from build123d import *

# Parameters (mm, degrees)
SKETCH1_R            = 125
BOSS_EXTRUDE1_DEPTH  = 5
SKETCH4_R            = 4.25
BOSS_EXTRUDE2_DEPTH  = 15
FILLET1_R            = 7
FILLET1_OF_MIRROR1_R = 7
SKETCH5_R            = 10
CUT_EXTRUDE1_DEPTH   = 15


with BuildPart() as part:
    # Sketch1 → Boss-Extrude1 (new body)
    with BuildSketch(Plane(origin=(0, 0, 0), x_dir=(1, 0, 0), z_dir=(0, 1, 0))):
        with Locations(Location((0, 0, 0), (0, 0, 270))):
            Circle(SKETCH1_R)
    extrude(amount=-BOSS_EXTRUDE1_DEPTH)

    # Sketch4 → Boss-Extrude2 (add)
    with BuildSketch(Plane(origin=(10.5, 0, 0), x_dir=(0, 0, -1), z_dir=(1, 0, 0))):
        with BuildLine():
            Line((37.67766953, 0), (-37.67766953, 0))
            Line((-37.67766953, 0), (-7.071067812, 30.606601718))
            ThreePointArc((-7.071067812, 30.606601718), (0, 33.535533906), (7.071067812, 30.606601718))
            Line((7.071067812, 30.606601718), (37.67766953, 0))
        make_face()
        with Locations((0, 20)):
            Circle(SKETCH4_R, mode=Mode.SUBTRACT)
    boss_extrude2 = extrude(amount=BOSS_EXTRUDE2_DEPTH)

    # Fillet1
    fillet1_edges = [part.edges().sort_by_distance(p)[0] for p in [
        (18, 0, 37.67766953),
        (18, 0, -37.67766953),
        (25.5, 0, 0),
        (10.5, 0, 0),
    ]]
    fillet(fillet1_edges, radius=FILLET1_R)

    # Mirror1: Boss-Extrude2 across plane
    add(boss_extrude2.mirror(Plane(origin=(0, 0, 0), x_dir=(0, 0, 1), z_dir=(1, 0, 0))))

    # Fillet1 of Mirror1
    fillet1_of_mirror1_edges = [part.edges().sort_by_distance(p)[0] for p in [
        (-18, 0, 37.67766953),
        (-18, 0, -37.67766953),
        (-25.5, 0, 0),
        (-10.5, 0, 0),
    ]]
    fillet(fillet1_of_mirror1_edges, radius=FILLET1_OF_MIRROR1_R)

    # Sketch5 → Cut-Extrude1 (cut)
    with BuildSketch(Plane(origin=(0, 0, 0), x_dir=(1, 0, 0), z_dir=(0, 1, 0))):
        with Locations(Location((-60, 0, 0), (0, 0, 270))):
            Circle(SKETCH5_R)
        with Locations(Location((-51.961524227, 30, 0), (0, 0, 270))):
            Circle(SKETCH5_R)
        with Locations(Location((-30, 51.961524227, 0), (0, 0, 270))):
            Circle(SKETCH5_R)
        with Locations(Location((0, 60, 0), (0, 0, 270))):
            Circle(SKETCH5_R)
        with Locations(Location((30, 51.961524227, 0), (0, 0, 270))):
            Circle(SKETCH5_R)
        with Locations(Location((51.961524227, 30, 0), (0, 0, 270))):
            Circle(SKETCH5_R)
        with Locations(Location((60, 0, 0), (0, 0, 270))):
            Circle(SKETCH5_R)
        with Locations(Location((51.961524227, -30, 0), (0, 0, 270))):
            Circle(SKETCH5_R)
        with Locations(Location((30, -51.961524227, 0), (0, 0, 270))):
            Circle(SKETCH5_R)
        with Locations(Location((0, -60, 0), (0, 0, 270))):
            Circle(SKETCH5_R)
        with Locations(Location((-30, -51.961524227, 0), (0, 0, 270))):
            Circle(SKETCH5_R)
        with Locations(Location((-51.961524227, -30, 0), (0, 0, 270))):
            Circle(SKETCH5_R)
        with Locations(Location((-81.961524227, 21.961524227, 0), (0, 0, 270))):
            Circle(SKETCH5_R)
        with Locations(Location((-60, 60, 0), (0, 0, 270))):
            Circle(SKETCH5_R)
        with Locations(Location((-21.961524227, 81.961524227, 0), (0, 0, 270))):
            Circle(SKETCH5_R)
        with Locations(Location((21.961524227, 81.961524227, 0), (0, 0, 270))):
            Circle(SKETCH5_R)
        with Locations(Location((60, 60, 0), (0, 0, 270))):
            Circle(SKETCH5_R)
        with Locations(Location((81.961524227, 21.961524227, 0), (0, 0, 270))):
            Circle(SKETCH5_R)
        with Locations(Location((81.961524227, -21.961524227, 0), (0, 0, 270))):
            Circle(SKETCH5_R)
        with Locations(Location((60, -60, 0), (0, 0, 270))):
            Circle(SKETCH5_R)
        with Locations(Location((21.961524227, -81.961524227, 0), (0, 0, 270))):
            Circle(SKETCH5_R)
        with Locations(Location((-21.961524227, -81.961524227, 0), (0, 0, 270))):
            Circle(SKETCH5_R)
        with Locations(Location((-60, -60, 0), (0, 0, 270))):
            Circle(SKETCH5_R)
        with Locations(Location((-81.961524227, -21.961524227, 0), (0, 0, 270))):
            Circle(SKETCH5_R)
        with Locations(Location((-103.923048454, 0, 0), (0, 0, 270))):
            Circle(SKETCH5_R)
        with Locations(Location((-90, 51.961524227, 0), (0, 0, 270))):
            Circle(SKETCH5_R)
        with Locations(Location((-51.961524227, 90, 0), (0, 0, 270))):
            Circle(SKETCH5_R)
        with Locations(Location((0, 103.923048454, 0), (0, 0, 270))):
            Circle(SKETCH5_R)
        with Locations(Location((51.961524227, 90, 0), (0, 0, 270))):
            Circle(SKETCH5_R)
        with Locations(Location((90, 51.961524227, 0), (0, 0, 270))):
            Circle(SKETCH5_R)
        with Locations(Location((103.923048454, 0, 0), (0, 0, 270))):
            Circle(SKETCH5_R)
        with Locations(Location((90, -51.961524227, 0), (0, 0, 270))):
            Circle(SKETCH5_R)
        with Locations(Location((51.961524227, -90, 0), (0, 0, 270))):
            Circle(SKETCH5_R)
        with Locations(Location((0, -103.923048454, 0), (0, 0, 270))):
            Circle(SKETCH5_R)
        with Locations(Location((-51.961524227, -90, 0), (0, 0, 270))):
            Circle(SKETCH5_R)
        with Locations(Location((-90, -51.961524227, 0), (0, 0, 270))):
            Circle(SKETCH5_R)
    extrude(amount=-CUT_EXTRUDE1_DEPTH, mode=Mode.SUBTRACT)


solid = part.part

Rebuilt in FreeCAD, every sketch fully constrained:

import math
import FreeCAD as App
import Part
import Sketcher

V = App.Vector


def edges_at(feature, points):
    """Names of the edges that pass closest to the given points."""
    edges = feature.Shape.Edges
    near = lambda p: min(range(len(edges)), key=lambda i: edges[i].distToShape(Part.Vertex(*p))[0])
    return sorted({f"Edge{near(p) + 1}" for p in points})

doc = App.newDocument("Part")
body = doc.addObject("PartDesign::Body", "Body")

# Sketch on XZ plane
sketch1 = doc.addObject("Sketcher::SketchObject", "Sketch")
body.addObject(sketch1)
sketch1.AttachmentSupport = (doc.XZ_Plane, [""])
sketch1.MapMode = "FlatFace"
sketch1.addGeometry(Part.Circle(V(0, 0, 0), V(0, 0, 1), 125), False)
sketch1.addConstraint([
    Sketcher.Constraint("Coincident", 0, 3, -1, 1),
    Sketcher.Constraint("Diameter", 0, 250.0),
])
pad1 = doc.addObject("PartDesign::Pad", "Pad")
body.addObject(pad1)
pad1.Profile = sketch1
pad1.Length = 5

# Sketch on YZ plane
sketch2 = doc.addObject("Sketcher::SketchObject", "Sketch001")
body.addObject(sketch2)
sketch2.AttachmentSupport = (doc.YZ_Plane, [""])
sketch2.MapMode = "FlatFace"
sketch2.AttachmentOffset = App.Placement(V(0, 0, 10.5), App.Rotation())
sketch2.addGeometry([
    Part.LineSegment(V(0, 37.7, 0), V(0, -37.7, 0)),  # 0
    Part.LineSegment(V(0, -37.7, 0), V(30.6, -7.1, 0)),  # 1
    Part.ArcOfCircle(Part.Circle(V(23.5, 0, 0), V(0, 0, 1), 10), math.radians(-45), math.radians(45)),  # 2
    Part.LineSegment(V(30.6, 7.1, 0), V(0, 37.7, 0)),  # 3
    Part.Circle(V(20, 0, 0), V(0, 0, 1), 4.2),  # 4
], False)
sketch2.addConstraint([
    Sketcher.Constraint("Coincident", 0, 2, 1, 1),
    Sketcher.Constraint("Tangent", 1, 2, 2, 1),
    Sketcher.Constraint("Tangent", 2, 2, 3, 1),
    Sketcher.Constraint("Coincident", 3, 2, 0, 1),
    Sketcher.Constraint("Vertical", 0),
    Sketcher.Constraint("Symmetric", 0, 2, 3, 2, -1, 1),
    Sketcher.Constraint("PointOnObject", 2, 3, -1),
    Sketcher.Constraint("PointOnObject", 4, 3, -1),
    Sketcher.Constraint("Perpendicular", 1, 3),
    Sketcher.Constraint("Radius", 2, 10.0),
    Sketcher.Constraint("Diameter", 4, 8.5),
    Sketcher.Constraint("DistanceX", -1, 1, 4, 3, 20.0),
    Sketcher.Constraint("DistanceY", 0, 2, 0, 1, 75.355339),
])
pad2 = doc.addObject("PartDesign::Pad", "Pad001")
body.addObject(pad2)
pad2.Profile = sketch2
pad2.Length = 15
doc.recompute()

fillet = doc.addObject("PartDesign::Fillet", "Fillet")
body.addObject(fillet)
fillet.Base = (pad2, edges_at(pad2, [
    (18, 0, 37.678),
    (18, 0, -37.678),
    (25.5, 0, 0),
    (10.5, 0, 0),
]))
fillet.Radius = 7
doc.recompute()

mirrored = doc.addObject("PartDesign::Mirrored", "Mirrored")
body.addObject(mirrored)
mirrored.Originals = [pad2]
mirrored.MirrorPlane = (doc.YZ_Plane, [""])
body.Tip = mirrored
doc.recompute()

fillet2 = doc.addObject("PartDesign::Fillet", "Fillet001")
body.addObject(fillet2)
fillet2.Base = (mirrored, edges_at(mirrored, [
    (-18, 0, 37.678),
    (-18, 0, -37.678),
    (-25.5, 0, 0),
    (-10.5, 0, 0),
]))
fillet2.Radius = 7

# Sketch on XZ plane
sketch3 = doc.addObject("Sketcher::SketchObject", "Sketch002")
body.addObject(sketch3)
sketch3.AttachmentSupport = (doc.XZ_Plane, [""])
sketch3.MapMode = "FlatFace"
sketch3.addGeometry([
    Part.Circle(V(-60, 0, 0), V(0, 0, 1), 10),  # 0
    Part.Circle(V(-52, -30, 0), V(0, 0, 1), 10),  # 1
    Part.Circle(V(-30, -52, 0), V(0, 0, 1), 10),  # 2
    Part.Circle(V(0, -60, 0), V(0, 0, 1), 10),  # 3
    Part.Circle(V(30, -52, 0), V(0, 0, 1), 10),  # 4
    Part.Circle(V(52, -30, 0), V(0, 0, 1), 10),  # 5
    Part.Circle(V(60, 0, 0), V(0, 0, 1), 10),  # 6
    Part.Circle(V(52, 30, 0), V(0, 0, 1), 10),  # 7
    Part.Circle(V(30, 52, 0), V(0, 0, 1), 10),  # 8
    Part.Circle(V(0, 60, 0), V(0, 0, 1), 10),  # 9
    Part.Circle(V(-30, 52, 0), V(0, 0, 1), 10),  # 10
    Part.Circle(V(-52, 30, 0), V(0, 0, 1), 10),  # 11
    Part.Circle(V(-82, -22, 0), V(0, 0, 1), 10),  # 12
    Part.Circle(V(-60, -60, 0), V(0, 0, 1), 10),  # 13
    Part.Circle(V(-22, -82, 0), V(0, 0, 1), 10),  # 14
    Part.Circle(V(22, -82, 0), V(0, 0, 1), 10),  # 15
    Part.Circle(V(60, -60, 0), V(0, 0, 1), 10),  # 16
    Part.Circle(V(82, -22, 0), V(0, 0, 1), 10),  # 17
    Part.Circle(V(82, 22, 0), V(0, 0, 1), 10),  # 18
    Part.Circle(V(60, 60, 0), V(0, 0, 1), 10),  # 19
    Part.Circle(V(22, 82, 0), V(0, 0, 1), 10),  # 20
    Part.Circle(V(-22, 82, 0), V(0, 0, 1), 10),  # 21
    Part.Circle(V(-60, 60, 0), V(0, 0, 1), 10),  # 22
    Part.Circle(V(-82, 22, 0), V(0, 0, 1), 10),  # 23
    Part.Circle(V(-104, 0, 0), V(0, 0, 1), 10),  # 24
    Part.Circle(V(-90, -52, 0), V(0, 0, 1), 10),  # 25
    Part.Circle(V(-52, -90, 0), V(0, 0, 1), 10),  # 26
    Part.Circle(V(0, -104, 0), V(0, 0, 1), 10),  # 27
    Part.Circle(V(52, -90, 0), V(0, 0, 1), 10),  # 28
    Part.Circle(V(90, -52, 0), V(0, 0, 1), 10),  # 29
    Part.Circle(V(104, 0, 0), V(0, 0, 1), 10),  # 30
    Part.Circle(V(90, 52, 0), V(0, 0, 1), 10),  # 31
    Part.Circle(V(52, 90, 0), V(0, 0, 1), 10),  # 32
    Part.Circle(V(0, 104, 0), V(0, 0, 1), 10),  # 33
    Part.Circle(V(-52, 90, 0), V(0, 0, 1), 10),  # 34
    Part.Circle(V(-90, 52, 0), V(0, 0, 1), 10),  # 35
], False)
sketch3.addConstraint([
    Sketcher.Constraint("Equal", 0, 1),
    Sketcher.Constraint("Equal", 1, 2),
    Sketcher.Constraint("Equal", 2, 3),
    Sketcher.Constraint("Equal", 3, 4),
    Sketcher.Constraint("Equal", 4, 5),
    Sketcher.Constraint("Equal", 5, 6),
    Sketcher.Constraint("Equal", 6, 7),
    Sketcher.Constraint("Equal", 7, 8),
    Sketcher.Constraint("Equal", 8, 9),
    Sketcher.Constraint("Equal", 9, 10),
    Sketcher.Constraint("Equal", 10, 11),
    Sketcher.Constraint("Equal", 11, 12),
    Sketcher.Constraint("Equal", 12, 13),
    Sketcher.Constraint("Equal", 13, 14),
    Sketcher.Constraint("Equal", 14, 15),
    Sketcher.Constraint("Equal", 15, 16),
    Sketcher.Constraint("Equal", 16, 17),
    Sketcher.Constraint("Equal", 17, 18),
    Sketcher.Constraint("Equal", 18, 19),
    Sketcher.Constraint("Equal", 19, 20),
    Sketcher.Constraint("Equal", 20, 21),
    Sketcher.Constraint("Equal", 21, 22),
    Sketcher.Constraint("Equal", 22, 23),
    Sketcher.Constraint("Equal", 23, 24),
    Sketcher.Constraint("Equal", 24, 25),
    Sketcher.Constraint("Equal", 25, 26),
    Sketcher.Constraint("Equal", 26, 27),
    Sketcher.Constraint("Equal", 27, 28),
    Sketcher.Constraint("Equal", 28, 29),
    Sketcher.Constraint("Equal", 29, 30),
    Sketcher.Constraint("Equal", 30, 31),
    Sketcher.Constraint("Equal", 31, 32),
    Sketcher.Constraint("Equal", 32, 33),
    Sketcher.Constraint("Equal", 33, 34),
    Sketcher.Constraint("Equal", 34, 35),
    Sketcher.Constraint("Symmetric", 0, 3, 6, 3, -1, 1),
    Sketcher.Constraint("Symmetric", 1, 3, 7, 3, -1, 1),
    Sketcher.Constraint("Symmetric", 2, 3, 8, 3, -1, 1),
    Sketcher.Constraint("Symmetric", 3, 3, 9, 3, -1, 1),
    Sketcher.Constraint("Symmetric", 4, 3, 10, 3, -1, 1),
    Sketcher.Constraint("Symmetric", 5, 3, 11, 3, -1, 1),
    Sketcher.Constraint("Symmetric", 12, 3, 18, 3, -1, 1),
    Sketcher.Constraint("Symmetric", 13, 3, 19, 3, -1, 1),
    Sketcher.Constraint("Symmetric", 14, 3, 20, 3, -1, 1),
    Sketcher.Constraint("Symmetric", 15, 3, 21, 3, -1, 1),
    Sketcher.Constraint("Symmetric", 16, 3, 22, 3, -1, 1),
    Sketcher.Constraint("Symmetric", 17, 3, 23, 3, -1, 1),
    Sketcher.Constraint("Symmetric", 24, 3, 30, 3, -1, 1),
    Sketcher.Constraint("Symmetric", 25, 3, 31, 3, -1, 1),
    Sketcher.Constraint("Symmetric", 26, 3, 32, 3, -1, 1),
    Sketcher.Constraint("Symmetric", 27, 3, 33, 3, -1, 1),
    Sketcher.Constraint("Symmetric", 28, 3, 34, 3, -1, 1),
    Sketcher.Constraint("Symmetric", 29, 3, 35, 3, -1, 1),
    Sketcher.Constraint("Symmetric", 2, 3, 4, 3, -2),
    Sketcher.Constraint("Symmetric", 1, 3, 5, 3, -2),
    Sketcher.Constraint("Symmetric", 14, 3, 15, 3, -2),
    Sketcher.Constraint("Symmetric", 13, 3, 16, 3, -2),
    Sketcher.Constraint("Symmetric", 12, 3, 17, 3, -2),
    Sketcher.Constraint("Symmetric", 26, 3, 28, 3, -2),
    Sketcher.Constraint("Symmetric", 25, 3, 29, 3, -2),
    Sketcher.Constraint("PointOnObject", 0, 3, -1),
    Sketcher.Constraint("PointOnObject", 3, 3, -2),
    Sketcher.Constraint("PointOnObject", 24, 3, -1),
    Sketcher.Constraint("PointOnObject", 27, 3, -2),
    Sketcher.Constraint("Horizontal", 3, 3, 13, 3),
    Sketcher.Constraint("Horizontal", 4, 3, 25, 3),
    Sketcher.Constraint("Vertical", 0, 3, 13, 3),
    Sketcher.Constraint("Vertical", 11, 3, 26, 3),
    Sketcher.Constraint("Diameter", 0, 20.0),
    Sketcher.Constraint("DistanceX", 0, 3, -1, 1, 60.0),
    Sketcher.Constraint("DistanceY", 1, 3, -1, 1, 30.0),
    Sketcher.Constraint("DistanceX", 2, 3, -1, 1, 30.0),
    Sketcher.Constraint("DistanceY", 3, 3, -1, 1, 60.0),
    Sketcher.Constraint("DistanceX", 25, 3, -1, 1, 90.0),
    Sketcher.Constraint("DistanceY", 26, 3, -1, 1, 90.0),
    Sketcher.Constraint("DistanceX", 12, 3, 1, 3, 30.0),
    Sketcher.Constraint("DistanceY", 2, 3, 12, 3, 30.0),
    Sketcher.Constraint("DistanceY", 14, 3, 2, 3, 30.0),
    Sketcher.Constraint("DistanceX", 1, 3, 14, 3, 30.0),
    Sketcher.Constraint("DistanceX", 24, 3, -1, 1, 103.923048),
    Sketcher.Constraint("DistanceY", 27, 3, -1, 1, 103.923048),
    Sketcher.Constraint("DistanceX", 1, 3, 5, 3, 103.923048),
    Sketcher.Constraint("DistanceY", 4, 3, 8, 3, 103.923048),
])
pocket1 = doc.addObject("PartDesign::Pocket", "Pocket")
body.addObject(pocket1)
pocket1.Profile = sketch3
pocket1.Length = 15
pocket1.Reversed = True

doc.recompute()
